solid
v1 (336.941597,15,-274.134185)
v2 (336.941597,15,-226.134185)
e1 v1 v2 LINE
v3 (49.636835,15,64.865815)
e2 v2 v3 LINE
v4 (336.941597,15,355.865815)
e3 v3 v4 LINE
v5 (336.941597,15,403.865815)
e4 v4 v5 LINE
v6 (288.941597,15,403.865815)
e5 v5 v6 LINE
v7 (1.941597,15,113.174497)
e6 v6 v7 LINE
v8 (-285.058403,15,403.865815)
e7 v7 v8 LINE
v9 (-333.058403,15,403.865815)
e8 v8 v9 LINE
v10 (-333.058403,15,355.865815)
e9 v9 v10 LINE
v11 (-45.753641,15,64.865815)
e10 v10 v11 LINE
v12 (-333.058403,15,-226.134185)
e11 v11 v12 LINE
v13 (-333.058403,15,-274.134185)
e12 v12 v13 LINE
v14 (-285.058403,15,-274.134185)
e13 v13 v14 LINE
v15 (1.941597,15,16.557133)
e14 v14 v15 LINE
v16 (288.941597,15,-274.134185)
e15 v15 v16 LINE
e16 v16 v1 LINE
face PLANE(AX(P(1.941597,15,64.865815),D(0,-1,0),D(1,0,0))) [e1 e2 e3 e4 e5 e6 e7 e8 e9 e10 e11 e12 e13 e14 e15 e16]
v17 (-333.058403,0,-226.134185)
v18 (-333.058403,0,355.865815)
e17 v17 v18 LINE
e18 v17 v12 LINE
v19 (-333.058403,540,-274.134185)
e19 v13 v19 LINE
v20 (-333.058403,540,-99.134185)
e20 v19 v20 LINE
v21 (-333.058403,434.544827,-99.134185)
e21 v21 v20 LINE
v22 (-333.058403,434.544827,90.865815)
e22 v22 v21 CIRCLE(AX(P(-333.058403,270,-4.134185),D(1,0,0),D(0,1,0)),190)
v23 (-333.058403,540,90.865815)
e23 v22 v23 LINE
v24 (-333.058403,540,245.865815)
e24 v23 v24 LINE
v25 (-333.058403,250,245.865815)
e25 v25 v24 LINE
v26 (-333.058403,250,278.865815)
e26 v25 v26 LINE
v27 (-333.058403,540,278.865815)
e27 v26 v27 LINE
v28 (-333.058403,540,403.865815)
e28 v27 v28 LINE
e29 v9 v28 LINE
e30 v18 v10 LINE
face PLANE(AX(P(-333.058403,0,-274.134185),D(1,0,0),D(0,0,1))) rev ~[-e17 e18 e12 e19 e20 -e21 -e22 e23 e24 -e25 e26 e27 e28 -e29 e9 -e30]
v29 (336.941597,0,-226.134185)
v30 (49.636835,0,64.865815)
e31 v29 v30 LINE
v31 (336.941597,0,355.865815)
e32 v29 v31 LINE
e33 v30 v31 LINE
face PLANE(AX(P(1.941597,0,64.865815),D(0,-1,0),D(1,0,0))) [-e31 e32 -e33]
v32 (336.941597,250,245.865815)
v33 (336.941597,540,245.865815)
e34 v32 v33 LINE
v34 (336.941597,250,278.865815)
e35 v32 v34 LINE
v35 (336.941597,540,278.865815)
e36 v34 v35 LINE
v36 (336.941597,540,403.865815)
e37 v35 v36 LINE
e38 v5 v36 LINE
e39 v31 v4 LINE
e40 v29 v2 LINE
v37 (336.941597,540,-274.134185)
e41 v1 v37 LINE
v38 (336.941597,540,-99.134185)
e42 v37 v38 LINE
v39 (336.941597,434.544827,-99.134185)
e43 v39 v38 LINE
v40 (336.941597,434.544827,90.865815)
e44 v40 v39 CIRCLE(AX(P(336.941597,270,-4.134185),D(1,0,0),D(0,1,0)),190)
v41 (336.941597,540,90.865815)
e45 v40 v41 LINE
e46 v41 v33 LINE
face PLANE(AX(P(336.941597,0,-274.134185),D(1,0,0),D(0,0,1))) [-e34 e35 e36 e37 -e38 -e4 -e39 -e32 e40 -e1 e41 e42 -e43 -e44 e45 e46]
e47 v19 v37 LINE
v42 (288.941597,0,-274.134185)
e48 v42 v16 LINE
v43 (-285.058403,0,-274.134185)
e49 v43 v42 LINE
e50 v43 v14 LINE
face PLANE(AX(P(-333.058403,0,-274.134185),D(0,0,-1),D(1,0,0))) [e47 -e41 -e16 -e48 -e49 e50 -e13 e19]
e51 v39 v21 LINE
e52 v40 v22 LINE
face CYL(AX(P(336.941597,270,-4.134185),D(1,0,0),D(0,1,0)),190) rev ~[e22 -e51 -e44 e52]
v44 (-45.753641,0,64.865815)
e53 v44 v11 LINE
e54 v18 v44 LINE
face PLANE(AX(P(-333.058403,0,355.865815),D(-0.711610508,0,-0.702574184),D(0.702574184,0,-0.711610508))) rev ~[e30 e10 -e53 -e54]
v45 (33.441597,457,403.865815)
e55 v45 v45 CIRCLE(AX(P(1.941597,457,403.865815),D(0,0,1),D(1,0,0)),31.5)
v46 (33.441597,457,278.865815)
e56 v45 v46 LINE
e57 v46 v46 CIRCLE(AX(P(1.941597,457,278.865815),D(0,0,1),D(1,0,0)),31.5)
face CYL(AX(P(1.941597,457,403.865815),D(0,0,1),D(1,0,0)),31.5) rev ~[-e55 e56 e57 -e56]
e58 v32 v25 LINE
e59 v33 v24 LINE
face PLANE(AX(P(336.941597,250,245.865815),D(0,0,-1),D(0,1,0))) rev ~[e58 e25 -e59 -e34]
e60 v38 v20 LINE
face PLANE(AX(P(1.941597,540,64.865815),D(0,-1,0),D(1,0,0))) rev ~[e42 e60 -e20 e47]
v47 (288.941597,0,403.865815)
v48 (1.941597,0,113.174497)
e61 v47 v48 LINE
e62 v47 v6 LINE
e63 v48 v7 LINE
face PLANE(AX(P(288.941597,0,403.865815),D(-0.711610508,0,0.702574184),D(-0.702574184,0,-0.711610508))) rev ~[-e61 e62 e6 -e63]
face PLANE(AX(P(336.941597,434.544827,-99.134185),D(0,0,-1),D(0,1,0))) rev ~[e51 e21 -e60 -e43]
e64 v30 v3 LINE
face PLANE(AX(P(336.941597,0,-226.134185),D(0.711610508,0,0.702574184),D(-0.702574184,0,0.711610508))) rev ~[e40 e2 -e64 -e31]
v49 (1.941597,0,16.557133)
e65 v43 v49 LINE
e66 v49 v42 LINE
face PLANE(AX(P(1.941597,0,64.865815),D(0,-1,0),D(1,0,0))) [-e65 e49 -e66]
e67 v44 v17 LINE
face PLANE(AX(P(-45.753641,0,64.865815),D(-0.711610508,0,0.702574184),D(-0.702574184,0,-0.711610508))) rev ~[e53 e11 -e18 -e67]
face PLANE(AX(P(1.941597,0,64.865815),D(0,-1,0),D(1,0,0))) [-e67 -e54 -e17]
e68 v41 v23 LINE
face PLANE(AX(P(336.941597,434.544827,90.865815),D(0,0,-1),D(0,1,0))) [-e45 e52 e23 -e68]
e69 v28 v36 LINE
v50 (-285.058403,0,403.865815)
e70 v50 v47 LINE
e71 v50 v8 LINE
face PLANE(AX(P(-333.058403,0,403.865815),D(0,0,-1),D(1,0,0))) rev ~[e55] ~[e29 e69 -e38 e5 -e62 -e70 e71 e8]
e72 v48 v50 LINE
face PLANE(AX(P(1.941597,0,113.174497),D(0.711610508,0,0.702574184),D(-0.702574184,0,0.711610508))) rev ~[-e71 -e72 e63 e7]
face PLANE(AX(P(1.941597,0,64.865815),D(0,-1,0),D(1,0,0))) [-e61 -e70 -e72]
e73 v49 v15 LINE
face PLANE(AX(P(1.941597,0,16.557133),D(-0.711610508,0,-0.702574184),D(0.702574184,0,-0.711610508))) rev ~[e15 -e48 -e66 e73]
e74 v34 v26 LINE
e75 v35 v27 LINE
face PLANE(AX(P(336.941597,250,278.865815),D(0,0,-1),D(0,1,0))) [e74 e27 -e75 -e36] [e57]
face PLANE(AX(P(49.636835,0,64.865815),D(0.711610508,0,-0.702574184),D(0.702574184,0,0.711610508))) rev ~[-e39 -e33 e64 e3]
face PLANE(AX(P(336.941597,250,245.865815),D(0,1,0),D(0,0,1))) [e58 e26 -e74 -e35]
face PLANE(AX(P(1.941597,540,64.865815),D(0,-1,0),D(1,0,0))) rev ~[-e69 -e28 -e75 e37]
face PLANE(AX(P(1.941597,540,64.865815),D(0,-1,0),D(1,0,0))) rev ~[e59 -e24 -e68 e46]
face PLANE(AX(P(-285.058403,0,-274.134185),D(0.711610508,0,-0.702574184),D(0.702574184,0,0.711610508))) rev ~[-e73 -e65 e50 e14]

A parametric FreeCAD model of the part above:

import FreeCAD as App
import Part
import Sketcher

doc = App.newDocument("Part")
params = doc.addObject("Spreadsheet::Sheet", "Params")
for row, (alias, value) in enumerate([
    ("sketch1_width", "670 mm"),
    ("sketch1_height", "678 mm"),
    ("pad1_length", "540 mm"),
    ("sketch2_diameter", "63 mm"),
    ("pocket1_length", "125 mm"),
    ("sketch3_width", "290 mm"),
    ("sketch3_height", "33 mm"),
    ("pocket2_length", "670 mm"),
    ("sketch4_diameter", "380 mm"),
    ("pocket3_length", "670 mm"),
    ("sketch5_height", "190 mm"),
    ("pocket4_length", "670 mm"),
    ("sketch6_width", "48 mm"),
    ("pocket5_length", "15 mm"),
], start=1):
    params.set(f"A{row}", alias)
    params.set(f"B{row}", "=" + value)
    params.setAlias(f"B{row}", alias)

body = doc.addObject("PartDesign::Body", "Body")

# Sketch on XZ plane
sketch1 = doc.addObject("Sketcher::SketchObject", "Sketch")
body.addObject(sketch1)
sketch1.AttachmentSupport = (doc.XZ_Plane, [""])
sketch1.MapMode = "FlatFace"
sketch1.addGeometry([
    Part.LineSegment(App.Vector(-333, 404, 0), App.Vector(-333, -274, 0)),
    Part.LineSegment(App.Vector(-333, -274, 0), App.Vector(337, -274, 0)),
    Part.LineSegment(App.Vector(337, -274, 0), App.Vector(337, 404, 0)),
    Part.LineSegment(App.Vector(337, 404, 0), App.Vector(-333, 404, 0)),
], False)
sketch1.addConstraint([
    Sketcher.Constraint("Coincident", 0, 2, 1, 1),
    Sketcher.Constraint("Coincident", 1, 2, 2, 1),
    Sketcher.Constraint("Coincident", 2, 2, 3, 1),
    Sketcher.Constraint("Coincident", 3, 2, 0, 1),
    Sketcher.Constraint("Vertical", 0),
    Sketcher.Constraint("Horizontal", 1),
    Sketcher.Constraint("Vertical", 2),
    Sketcher.Constraint("Horizontal", 3),
    Sketcher.Constraint("DistanceX", 1, 1, 1, 2, 670.0),
    Sketcher.Constraint("DistanceY", 0, 2, 0, 1, 678.0),
    Sketcher.Constraint("DistanceX", 0, 2, -1, 1, 333.058403),
    Sketcher.Constraint("DistanceY", 0, 2, -1, 1, 274.134185),
])
sketch1.setExpression("Constraints[8]", "Params.sketch1_width")
sketch1.setExpression("Constraints[9]", "Params.sketch1_height")
pad1 = doc.addObject("PartDesign::Pad", "Pad")
body.addObject(pad1)
pad1.Profile = sketch1
pad1.setExpression("Length", "Params.pad1_length")
pad1.Reversed = True

# Sketch on XY plane
sketch2 = doc.addObject("Sketcher::SketchObject", "Sketch001")
body.addObject(sketch2)
sketch2.AttachmentSupport = (doc.XY_Plane, [""])
sketch2.MapMode = "FlatFace"
sketch2.AttachmentOffset = App.Placement(App.Vector(0, 0, 403.865815), App.Rotation())
sketch2.addGeometry(Part.Circle(App.Vector(2, 457, 0), App.Vector(0, 0, 1), 32), False)
sketch2.addConstraint([
    Sketcher.Constraint("Diameter", 0, 63.0),
    Sketcher.Constraint("DistanceY", -1, 1, 0, 3, 457.0),
    Sketcher.Constraint("DistanceX", -1, 1, 0, 3, 1.941597),
])
sketch2.setExpression("Constraints[0]", "Params.sketch2_diameter")
pocket1 = doc.addObject("PartDesign::Pocket", "Pocket")
body.addObject(pocket1)
pocket1.Profile = sketch2
pocket1.setExpression("Length", "Params.pocket1_length")

# Sketch on YZ plane
sketch3 = doc.addObject("Sketcher::SketchObject", "Sketch002")
body.addObject(sketch3)
sketch3.AttachmentSupport = (doc.YZ_Plane, [""])
sketch3.MapMode = "FlatFace"
sketch3.AttachmentOffset = App.Placement(App.Vector(0, 0, 336.941597), App.Rotation())
sketch3.addGeometry([
    Part.LineSegment(App.Vector(250, 279, 0), App.Vector(250, 246, 0)),
    Part.LineSegment(App.Vector(250, 246, 0), App.Vector(540, 246, 0)),
    Part.LineSegment(App.Vector(540, 246, 0), App.Vector(540, 279, 0)),
    Part.LineSegment(App.Vector(540, 279, 0), App.Vector(250, 279, 0)),
], False)
sketch3.addConstraint([
    Sketcher.Constraint("Coincident", 0, 2, 1, 1),
    Sketcher.Constraint("Coincident", 1, 2, 2, 1),
    Sketcher.Constraint("Coincident", 2, 2, 3, 1),
    Sketcher.Constraint("Coincident", 3, 2, 0, 1),
    Sketcher.Constraint("Vertical", 0),
    Sketcher.Constraint("Horizontal", 1),
    Sketcher.Constraint("Vertical", 2),
    Sketcher.Constraint("Horizontal", 3),
    Sketcher.Constraint("DistanceX", 1, 1, 1, 2, 290.0),
    Sketcher.Constraint("DistanceY", 0, 2, 0, 1, 33.0),
    Sketcher.Constraint("DistanceX", -1, 1, 0, 2, 250.0),
    Sketcher.Constraint("DistanceY", -1, 1, 0, 2, 245.865815),
])
sketch3.setExpression("Constraints[8]", "Params.sketch3_width")
sketch3.setExpression("Constraints[9]", "Params.sketch3_height")
pocket2 = doc.addObject("PartDesign::Pocket", "Pocket001")
body.addObject(pocket2)
pocket2.Profile = sketch3
pocket2.setExpression("Length", "Params.pocket2_length")

# Sketch on YZ plane
sketch4 = doc.addObject("Sketcher::SketchObject", "Sketch003")
body.addObject(sketch4)
sketch4.AttachmentSupport = (doc.YZ_Plane, [""])
sketch4.MapMode = "FlatFace"
sketch4.AttachmentOffset = App.Placement(App.Vector(0, 0, 336.941597), App.Rotation())
sketch4.addGeometry(Part.Circle(App.Vector(270, -4, 0), App.Vector(0, 0, 1), 190), False)
sketch4.addConstraint([
    Sketcher.Constraint("Diameter", 0, 380.0),
    Sketcher.Constraint("DistanceX", -1, 1, 0, 3, 270.0),
    Sketcher.Constraint("DistanceY", 0, 3, -1, 1, 4.134185),
])
sketch4.setExpression("Constraints[0]", "Params.sketch4_diameter")
pocket3 = doc.addObject("PartDesign::Pocket", "Pocket002")
body.addObject(pocket3)
pocket3.Profile = sketch4
pocket3.setExpression("Length", "Params.pocket3_length")

# Sketch on YZ plane
sketch5 = doc.addObject("Sketcher::SketchObject", "Sketch004")
body.addObject(sketch5)
sketch5.AttachmentSupport = (doc.YZ_Plane, [""])
sketch5.MapMode = "FlatFace"
sketch5.AttachmentOffset = App.Placement(App.Vector(0, 0, 336.941597), App.Rotation())
sketch5.addGeometry([
    Part.LineSegment(App.Vector(435, 91, 0), App.Vector(435, -99, 0)),
    Part.LineSegment(App.Vector(435, -99, 0), App.Vector(540, -99, 0)),
    Part.LineSegment(App.Vector(540, -99, 0), App.Vector(540, 91, 0)),
    Part.LineSegment(App.Vector(540, 91, 0), App.Vector(435, 91, 0)),
], False)
sketch5.addConstraint([
    Sketcher.Constraint("Coincident", 0, 2, 1, 1),
    Sketcher.Constraint("Coincident", 1, 2, 2, 1),
    Sketcher.Constraint("Coincident", 2, 2, 3, 1),
    Sketcher.Constraint("Coincident", 3, 2, 0, 1),
    Sketcher.Constraint("Vertical", 0),
    Sketcher.Constraint("Horizontal", 1),
    Sketcher.Constraint("Vertical", 2),
    Sketcher.Constraint("Horizontal", 3),
    Sketcher.Constraint("DistanceY", 0, 2, 0, 1, 190.0),
    Sketcher.Constraint("DistanceX", -1, 1, 1, 2, 540.0),
    Sketcher.Constraint("DistanceX", 1, 1, 1, 2, 105.455173),
    Sketcher.Constraint("DistanceY", 0, 2, -1, 1, 99.134185),
])
sketch5.setExpression("Constraints[8]", "Params.sketch5_height")
pocket4 = doc.addObject("PartDesign::Pocket", "Pocket003")
body.addObject(pocket4)
pocket4.Profile = sketch5
pocket4.setExpression("Length", "Params.pocket4_length")

# Sketch on XZ plane
sketch6 = doc.addObject("Sketcher::SketchObject", "Sketch005")
body.addObject(sketch6)
sketch6.AttachmentSupport = (doc.XZ_Plane, [""])
sketch6.MapMode = "FlatFace"
sketch6.addGeometry([
    Part.LineSegment(App.Vector(-285, 404, 0), App.Vector(-333, 404, 0)),  # 0
    Part.LineSegment(App.Vector(-333, 404, 0), App.Vector(-333, 356, 0)),  # 1
    Part.LineSegment(App.Vector(-333, 356, 0), App.Vector(-46, 65, 0)),  # 2
    Part.LineSegment(App.Vector(-46, 65, 0), App.Vector(-333, -226, 0)),  # 3
    Part.LineSegment(App.Vector(-333, -226, 0), App.Vector(-333, -274, 0)),  # 4
    Part.LineSegment(App.Vector(-333, -274, 0), App.Vector(-285, -274, 0)),  # 5
    Part.LineSegment(App.Vector(-285, -274, 0), App.Vector(2, 17, 0)),  # 6
    Part.LineSegment(App.Vector(2, 17, 0), App.Vector(289, -274, 0)),  # 7
    Part.LineSegment(App.Vector(289, -274, 0), App.Vector(337, -274, 0)),  # 8
    Part.LineSegment(App.Vector(337, -274, 0), App.Vector(337, -226, 0)),  # 9
    Part.LineSegment(App.Vector(337, -226, 0), App.Vector(50, 65, 0)),  # 10
    Part.LineSegment(App.Vector(50, 65, 0), App.Vector(337, 356, 0)),  # 11
    Part.LineSegment(App.Vector(337, 356, 0), App.Vector(337, 404, 0)),  # 12
    Part.LineSegment(App.Vector(337, 404, 0), App.Vector(289, 404, 0)),  # 13
    Part.LineSegment(App.Vector(289, 404, 0), App.Vector(2, 113, 0)),  # 14
    Part.LineSegment(App.Vector(2, 113, 0), App.Vector(-285, 404, 0)),  # 15
], False)
sketch6.addConstraint([
    Sketcher.Constraint("Coincident", 0, 2, 1, 1),
    Sketcher.Constraint("Coincident", 1, 2, 2, 1),
    Sketcher.Constraint("Coincident", 2, 2, 3, 1),
    Sketcher.Constraint("Coincident", 3, 2, 4, 1),
    Sketcher.Constraint("Coincident", 4, 2, 5, 1),
    Sketcher.Constraint("Coincident", 5, 2, 6, 1),
    Sketcher.Constraint("Coincident", 6, 2, 7, 1),
    Sketcher.Constraint("Coincident", 7, 2, 8, 1),
    Sketcher.Constraint("Coincident", 8, 2, 9, 1),
    Sketcher.Constraint("Coincident", 9, 2, 10, 1),
    Sketcher.Constraint("Coincident", 10, 2, 11, 1),
    Sketcher.Constraint("Coincident", 11, 2, 12, 1),
    Sketcher.Constraint("Coincident", 12, 2, 13, 1),
    Sketcher.Constraint("Coincident", 13, 2, 14, 1),
    Sketcher.Constraint("Coincident", 14, 2, 15, 1),
    Sketcher.Constraint("Coincident", 15, 2, 0, 1),
    Sketcher.Constraint("Horizontal", 0),
    Sketcher.Constraint("Vertical", 1),
    Sketcher.Constraint("Vertical", 4),
    Sketcher.Constraint("Horizontal", 5),
    Sketcher.Constraint("Horizontal", 8),
    Sketcher.Constraint("Vertical", 9),
    Sketcher.Constraint("Vertical", 12),
    Sketcher.Constraint("Horizontal", 13),
    Sketcher.Constraint("Parallel", 3, 6),
    Sketcher.Constraint("Parallel", 2, 7),
    Sketcher.Constraint("Parallel", 7, 10),
    Sketcher.Constraint("Parallel", 6, 11),
    Sketcher.Constraint("Parallel", 11, 14),
    Sketcher.Constraint("Parallel", 10, 15),
    Sketcher.Constraint("Horizontal", 5, 2, 7, 2),
    Sketcher.Constraint("Horizontal", 3, 2, 9, 2),
    Sketcher.Constraint("Horizontal", 2, 2, 10, 2),
    Sketcher.Constraint("Horizontal", 1, 2, 11, 2),
    Sketcher.Constraint("Horizontal", 0, 2, 12, 2),
    Sketcher.Constraint("Vertical", 1, 2, 3, 2),
    Sketcher.Constraint("Vertical", 9, 2, 11, 2),
    Sketcher.Constraint("Vertical", 7, 2, 13, 2),
    Sketcher.Constraint("Vertical", 6, 2, 14, 2),
    Sketcher.Constraint("Equal", 5, 8),
    Sketcher.Constraint("Equal", 13, 1),
    Sketcher.Constraint("Equal", 1, 4),
    Sketcher.Constraint("DistanceX", 0, 2, 0, 1, 48.0),
    Sketcher.Constraint("DistanceY", 2, 2, 1, 2, 291.0),
    Sketcher.Constraint("DistanceX", 5, 2, 6, 2, 287.0),
    Sketcher.Constraint("DistanceX", 2, 2, -1, 1, 45.753641),
    Sketcher.Constraint("DistanceX", 1, 2, 2, 2, 287.304762),
    Sketcher.Constraint("DistanceY", -1, 1, 0, 2, 403.865815),
])
sketch6.setExpression("Constraints[42]", "Params.sketch6_width")
pocket5 = doc.addObject("PartDesign::Pocket", "Pocket004")
body.addObject(pocket5)
pocket5.Profile = sketch6
pocket5.setExpression("Length", "Params.pocket5_length")

doc.recompute()
